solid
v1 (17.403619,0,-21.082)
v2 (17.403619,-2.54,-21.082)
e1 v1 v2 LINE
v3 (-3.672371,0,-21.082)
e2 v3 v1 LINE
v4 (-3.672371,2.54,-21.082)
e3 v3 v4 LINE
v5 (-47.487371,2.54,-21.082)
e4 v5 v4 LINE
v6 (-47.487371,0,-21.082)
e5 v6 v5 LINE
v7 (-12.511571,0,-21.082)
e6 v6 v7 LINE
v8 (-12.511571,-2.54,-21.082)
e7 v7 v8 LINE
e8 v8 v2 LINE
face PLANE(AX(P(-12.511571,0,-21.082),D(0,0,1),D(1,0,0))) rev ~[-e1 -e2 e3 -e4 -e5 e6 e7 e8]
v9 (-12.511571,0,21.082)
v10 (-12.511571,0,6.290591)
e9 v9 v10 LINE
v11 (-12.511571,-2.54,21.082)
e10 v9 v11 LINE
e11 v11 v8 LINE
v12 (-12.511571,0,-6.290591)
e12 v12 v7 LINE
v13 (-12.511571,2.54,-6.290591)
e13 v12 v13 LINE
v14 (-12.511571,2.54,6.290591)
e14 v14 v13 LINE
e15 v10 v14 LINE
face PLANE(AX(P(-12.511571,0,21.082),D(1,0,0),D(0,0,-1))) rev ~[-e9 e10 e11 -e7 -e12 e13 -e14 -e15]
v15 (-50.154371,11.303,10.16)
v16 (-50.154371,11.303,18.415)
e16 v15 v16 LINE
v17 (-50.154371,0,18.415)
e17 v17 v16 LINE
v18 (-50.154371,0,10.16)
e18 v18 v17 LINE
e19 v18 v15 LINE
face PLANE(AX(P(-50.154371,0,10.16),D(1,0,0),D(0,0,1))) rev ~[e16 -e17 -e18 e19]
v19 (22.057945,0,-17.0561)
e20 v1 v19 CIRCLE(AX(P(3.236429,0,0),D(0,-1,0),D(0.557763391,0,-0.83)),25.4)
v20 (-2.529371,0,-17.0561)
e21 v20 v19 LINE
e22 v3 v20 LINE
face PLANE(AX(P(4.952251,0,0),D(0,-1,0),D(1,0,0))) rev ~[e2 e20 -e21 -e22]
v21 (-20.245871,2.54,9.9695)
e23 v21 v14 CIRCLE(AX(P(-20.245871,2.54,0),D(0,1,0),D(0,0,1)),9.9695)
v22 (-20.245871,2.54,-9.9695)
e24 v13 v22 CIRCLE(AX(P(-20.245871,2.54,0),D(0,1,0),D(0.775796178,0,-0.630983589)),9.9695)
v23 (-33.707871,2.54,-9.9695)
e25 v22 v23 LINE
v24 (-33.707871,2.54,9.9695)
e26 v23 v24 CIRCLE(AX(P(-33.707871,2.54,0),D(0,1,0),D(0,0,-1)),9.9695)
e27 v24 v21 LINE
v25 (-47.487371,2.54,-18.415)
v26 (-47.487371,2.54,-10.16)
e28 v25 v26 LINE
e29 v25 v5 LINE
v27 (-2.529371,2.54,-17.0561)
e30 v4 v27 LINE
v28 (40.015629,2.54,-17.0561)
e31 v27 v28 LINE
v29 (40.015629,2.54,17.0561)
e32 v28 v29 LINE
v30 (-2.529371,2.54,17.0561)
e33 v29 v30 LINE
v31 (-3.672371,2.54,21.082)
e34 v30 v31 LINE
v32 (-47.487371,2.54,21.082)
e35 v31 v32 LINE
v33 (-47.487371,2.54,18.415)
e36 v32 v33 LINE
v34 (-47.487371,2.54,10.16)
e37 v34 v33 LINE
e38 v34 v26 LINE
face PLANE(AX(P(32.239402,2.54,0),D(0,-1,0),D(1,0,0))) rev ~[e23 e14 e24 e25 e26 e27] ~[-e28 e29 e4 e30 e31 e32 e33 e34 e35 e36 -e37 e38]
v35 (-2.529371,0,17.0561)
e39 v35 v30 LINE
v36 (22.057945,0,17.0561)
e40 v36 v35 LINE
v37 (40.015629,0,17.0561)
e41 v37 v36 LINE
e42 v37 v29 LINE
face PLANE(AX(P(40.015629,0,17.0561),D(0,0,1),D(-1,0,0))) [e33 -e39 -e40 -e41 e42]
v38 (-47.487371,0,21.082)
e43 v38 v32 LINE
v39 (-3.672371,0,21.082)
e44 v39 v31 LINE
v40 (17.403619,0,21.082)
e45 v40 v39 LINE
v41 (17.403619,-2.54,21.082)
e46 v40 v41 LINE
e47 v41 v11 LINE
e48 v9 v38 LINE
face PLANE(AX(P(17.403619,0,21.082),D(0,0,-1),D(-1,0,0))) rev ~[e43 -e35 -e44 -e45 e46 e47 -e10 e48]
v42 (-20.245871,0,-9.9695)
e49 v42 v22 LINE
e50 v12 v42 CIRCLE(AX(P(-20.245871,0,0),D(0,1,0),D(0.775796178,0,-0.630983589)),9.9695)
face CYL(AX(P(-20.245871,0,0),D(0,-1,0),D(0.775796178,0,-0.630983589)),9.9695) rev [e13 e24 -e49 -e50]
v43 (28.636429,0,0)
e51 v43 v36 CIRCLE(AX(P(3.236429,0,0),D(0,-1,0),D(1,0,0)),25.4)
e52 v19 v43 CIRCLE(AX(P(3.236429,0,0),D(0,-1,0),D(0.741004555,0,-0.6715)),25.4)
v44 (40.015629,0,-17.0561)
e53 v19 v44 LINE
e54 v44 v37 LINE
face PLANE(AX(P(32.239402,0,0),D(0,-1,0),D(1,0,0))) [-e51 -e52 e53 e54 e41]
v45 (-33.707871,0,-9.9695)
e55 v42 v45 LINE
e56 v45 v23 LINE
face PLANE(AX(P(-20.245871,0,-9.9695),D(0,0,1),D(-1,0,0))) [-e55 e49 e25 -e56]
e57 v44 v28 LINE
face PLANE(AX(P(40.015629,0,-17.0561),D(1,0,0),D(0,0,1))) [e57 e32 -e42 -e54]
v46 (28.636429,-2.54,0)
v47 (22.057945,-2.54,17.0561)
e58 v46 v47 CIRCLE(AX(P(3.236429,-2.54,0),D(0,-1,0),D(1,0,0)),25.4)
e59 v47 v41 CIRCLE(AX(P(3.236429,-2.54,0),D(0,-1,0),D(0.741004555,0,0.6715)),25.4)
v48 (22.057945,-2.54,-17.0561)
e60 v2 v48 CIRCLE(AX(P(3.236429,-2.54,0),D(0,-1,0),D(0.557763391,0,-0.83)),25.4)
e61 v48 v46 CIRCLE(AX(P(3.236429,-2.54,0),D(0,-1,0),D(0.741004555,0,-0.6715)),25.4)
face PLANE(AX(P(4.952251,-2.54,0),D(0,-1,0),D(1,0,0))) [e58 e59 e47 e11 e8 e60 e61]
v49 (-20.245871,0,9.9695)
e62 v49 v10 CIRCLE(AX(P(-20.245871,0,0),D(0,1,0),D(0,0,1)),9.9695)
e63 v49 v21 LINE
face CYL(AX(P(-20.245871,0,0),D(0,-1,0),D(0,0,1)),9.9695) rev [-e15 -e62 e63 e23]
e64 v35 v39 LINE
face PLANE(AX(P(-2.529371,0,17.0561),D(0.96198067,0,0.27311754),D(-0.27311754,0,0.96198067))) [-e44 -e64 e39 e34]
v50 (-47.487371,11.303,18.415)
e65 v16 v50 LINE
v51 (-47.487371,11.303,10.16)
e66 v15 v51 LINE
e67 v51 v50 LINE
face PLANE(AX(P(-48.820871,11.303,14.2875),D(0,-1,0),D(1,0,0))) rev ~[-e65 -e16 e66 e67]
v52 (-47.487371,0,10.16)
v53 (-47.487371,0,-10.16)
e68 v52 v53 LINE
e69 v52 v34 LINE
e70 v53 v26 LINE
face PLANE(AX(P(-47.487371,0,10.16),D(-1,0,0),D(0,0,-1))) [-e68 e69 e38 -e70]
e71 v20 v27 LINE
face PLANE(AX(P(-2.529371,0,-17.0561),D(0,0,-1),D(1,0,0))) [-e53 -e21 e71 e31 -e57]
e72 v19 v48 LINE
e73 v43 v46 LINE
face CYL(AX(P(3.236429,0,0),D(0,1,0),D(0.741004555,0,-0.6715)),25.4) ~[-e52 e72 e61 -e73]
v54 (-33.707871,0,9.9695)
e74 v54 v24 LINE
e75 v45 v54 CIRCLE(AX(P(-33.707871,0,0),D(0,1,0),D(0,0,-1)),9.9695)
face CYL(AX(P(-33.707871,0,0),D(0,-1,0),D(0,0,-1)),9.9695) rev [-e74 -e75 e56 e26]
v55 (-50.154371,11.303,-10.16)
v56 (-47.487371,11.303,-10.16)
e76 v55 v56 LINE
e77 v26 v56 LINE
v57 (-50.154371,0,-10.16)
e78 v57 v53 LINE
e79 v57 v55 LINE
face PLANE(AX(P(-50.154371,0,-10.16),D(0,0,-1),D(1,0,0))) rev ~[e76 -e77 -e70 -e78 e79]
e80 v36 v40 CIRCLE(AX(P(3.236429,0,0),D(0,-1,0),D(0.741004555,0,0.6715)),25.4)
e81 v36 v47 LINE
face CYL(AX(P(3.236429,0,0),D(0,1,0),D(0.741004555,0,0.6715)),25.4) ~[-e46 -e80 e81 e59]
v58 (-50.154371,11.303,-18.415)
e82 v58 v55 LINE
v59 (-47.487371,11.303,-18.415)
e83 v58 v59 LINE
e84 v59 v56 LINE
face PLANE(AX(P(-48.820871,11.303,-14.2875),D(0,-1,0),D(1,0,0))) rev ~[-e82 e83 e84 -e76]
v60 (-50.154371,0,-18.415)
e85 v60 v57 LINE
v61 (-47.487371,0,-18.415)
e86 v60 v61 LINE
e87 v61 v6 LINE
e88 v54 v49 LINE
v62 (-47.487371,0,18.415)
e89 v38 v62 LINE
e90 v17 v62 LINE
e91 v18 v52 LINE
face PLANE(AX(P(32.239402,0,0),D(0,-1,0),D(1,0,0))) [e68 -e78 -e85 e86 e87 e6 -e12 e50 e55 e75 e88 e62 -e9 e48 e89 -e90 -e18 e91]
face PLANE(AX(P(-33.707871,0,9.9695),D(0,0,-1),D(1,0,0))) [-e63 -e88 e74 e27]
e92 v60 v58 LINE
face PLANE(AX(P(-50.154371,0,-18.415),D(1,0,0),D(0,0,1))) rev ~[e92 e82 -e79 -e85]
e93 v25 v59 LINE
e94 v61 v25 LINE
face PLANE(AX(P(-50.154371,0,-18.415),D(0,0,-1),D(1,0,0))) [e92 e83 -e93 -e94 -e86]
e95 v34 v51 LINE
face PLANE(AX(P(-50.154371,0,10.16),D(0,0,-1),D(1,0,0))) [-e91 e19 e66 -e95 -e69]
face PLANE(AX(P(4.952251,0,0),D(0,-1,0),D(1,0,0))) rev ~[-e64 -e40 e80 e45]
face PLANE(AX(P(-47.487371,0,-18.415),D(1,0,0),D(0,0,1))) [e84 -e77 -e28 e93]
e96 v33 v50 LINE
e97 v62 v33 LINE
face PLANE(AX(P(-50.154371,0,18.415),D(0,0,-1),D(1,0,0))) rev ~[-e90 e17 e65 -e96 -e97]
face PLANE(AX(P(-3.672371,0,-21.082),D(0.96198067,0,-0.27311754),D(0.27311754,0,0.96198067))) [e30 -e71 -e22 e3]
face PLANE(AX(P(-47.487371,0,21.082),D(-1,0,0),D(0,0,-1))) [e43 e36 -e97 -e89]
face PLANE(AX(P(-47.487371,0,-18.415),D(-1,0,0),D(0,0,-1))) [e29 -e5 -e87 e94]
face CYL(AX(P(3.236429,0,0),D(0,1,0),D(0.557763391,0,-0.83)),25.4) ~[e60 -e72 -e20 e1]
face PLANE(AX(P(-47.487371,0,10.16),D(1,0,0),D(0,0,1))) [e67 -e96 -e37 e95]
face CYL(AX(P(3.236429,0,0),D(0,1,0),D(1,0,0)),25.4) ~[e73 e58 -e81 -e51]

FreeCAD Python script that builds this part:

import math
import FreeCAD as App
import Part
import Sketcher
Q = App.Units.Quantity

doc = App.newDocument("Part")
body = doc.addObject("PartDesign::Body", "Body")

# Sketch on XZ plane
sketch1 = body.newObject("Sketcher::SketchObject", "Sketch")
sketch1.AttachmentSupport = (doc.getObject("XZ_Plane"), [""])
sketch1.MapMode = "FlatFace"
sketch1.addGeometry(Part.LineSegment(App.Vector(40, 17.1, 0), App.Vector(-2.5, 17.1, 0)), False)
sketch1.addGeometry(Part.LineSegment(App.Vector(-2.5, 17.1, 0), App.Vector(-3.7, 21.1, 0)), False)
sketch1.addGeometry(Part.LineSegment(App.Vector(-3.7, 21.1, 0), App.Vector(-47.5, 21.1, 0)), False)
sketch1.addGeometry(Part.LineSegment(App.Vector(-47.5, 21.1, 0), App.Vector(-47.5, 18.4, 0)), False)
sketch1.addGeometry(Part.LineSegment(App.Vector(-47.5, 18.4, 0), App.Vector(-50.2, 18.4, 0)), False)
sketch1.addGeometry(Part.LineSegment(App.Vector(-50.2, 18.4, 0), App.Vector(-50.2, 10.2, 0)), False)
sketch1.addGeometry(Part.LineSegment(App.Vector(-50.2, 10.2, 0), App.Vector(-47.5, 10.2, 0)), False)
sketch1.addGeometry(Part.LineSegment(App.Vector(-47.5, 10.2, 0), App.Vector(-47.5, -10.2, 0)), False)
sketch1.addGeometry(Part.LineSegment(App.Vector(-47.5, -10.2, 0), App.Vector(-50.2, -10.2, 0)), False)
sketch1.addGeometry(Part.LineSegment(App.Vector(-50.2, -10.2, 0), App.Vector(-50.2, -18.4, 0)), False)
sketch1.addGeometry(Part.LineSegment(App.Vector(-50.2, -18.4, 0), App.Vector(-47.5, -18.4, 0)), False)
sketch1.addGeometry(Part.LineSegment(App.Vector(-47.5, -18.4, 0), App.Vector(-47.5, -21.1, 0)), False)
sketch1.addGeometry(Part.LineSegment(App.Vector(-47.5, -21.1, 0), App.Vector(-3.7, -21.1, 0)), False)
sketch1.addGeometry(Part.LineSegment(App.Vector(-3.7, -21.1, 0), App.Vector(-2.5, -17.1, 0)), False)
sketch1.addGeometry(Part.LineSegment(App.Vector(-2.5, -17.1, 0), App.Vector(40, -17.1, 0)), False)
sketch1.addGeometry(Part.LineSegment(App.Vector(40, -17.1, 0), App.Vector(40, 17.1, 0)), False)
sketch1.addGeometry(Part.LineSegment(App.Vector(-12.5, 6.3, 0), App.Vector(-12.5, -6.3, 0)), False)
sketch1.addGeometry(Part.ArcOfCircle(Part.Circle(App.Vector(-20.2, 0, 0), App.Vector(0, 0, 1), 10), math.radians(-90), math.radians(-39)), False)
sketch1.addGeometry(Part.LineSegment(App.Vector(-20.2, -10, 0), App.Vector(-33.7, -10, 0)), False)
sketch1.addGeometry(Part.ArcOfCircle(Part.Circle(App.Vector(-33.7, 0, 0), App.Vector(0, 0, 1), 10), math.radians(90), math.radians(270)), False)
sketch1.addGeometry(Part.LineSegment(App.Vector(-33.7, 10, 0), App.Vector(-20.2, 10, 0)), False)
sketch1.addGeometry(Part.ArcOfCircle(Part.Circle(App.Vector(-20.2, 0, 0), App.Vector(0, 0, 1), 10), math.radians(39), math.radians(90)), False)
sketch1.addConstraint(Sketcher.Constraint("Coincident", 0, 2, 1, 1))
sketch1.addConstraint(Sketcher.Constraint("Coincident", 1, 2, 2, 1))
sketch1.addConstraint(Sketcher.Constraint("Coincident", 2, 2, 3, 1))
sketch1.addConstraint(Sketcher.Constraint("Coincident", 3, 2, 4, 1))
sketch1.addConstraint(Sketcher.Constraint("Coincident", 4, 2, 5, 1))
sketch1.addConstraint(Sketcher.Constraint("Coincident", 5, 2, 6, 1))
sketch1.addConstraint(Sketcher.Constraint("Coincident", 6, 2, 7, 1))
sketch1.addConstraint(Sketcher.Constraint("Coincident", 7, 2, 8, 1))
sketch1.addConstraint(Sketcher.Constraint("Coincident", 8, 2, 9, 1))
sketch1.addConstraint(Sketcher.Constraint("Coincident", 9, 2, 10, 1))
sketch1.addConstraint(Sketcher.Constraint("Coincident", 10, 2, 11, 1))
sketch1.addConstraint(Sketcher.Constraint("Coincident", 11, 2, 12, 1))
sketch1.addConstraint(Sketcher.Constraint("Coincident", 12, 2, 13, 1))
sketch1.addConstraint(Sketcher.Constraint("Coincident", 13, 2, 14, 1))
sketch1.addConstraint(Sketcher.Constraint("Coincident", 14, 2, 15, 1))
sketch1.addConstraint(Sketcher.Constraint("Coincident", 15, 2, 0, 1))
sketch1.addConstraint(Sketcher.Constraint("Coincident", 16, 2, 17, 2))
sketch1.addConstraint(Sketcher.Constraint("Tangent", 17, 1, 18, 1))
sketch1.addConstraint(Sketcher.Constraint("Tangent", 18, 2, 19, 2))
sketch1.addConstraint(Sketcher.Constraint("Tangent", 19, 1, 20, 1))
sketch1.addConstraint(Sketcher.Constraint("Tangent", 20, 2, 21, 2))
sketch1.addConstraint(Sketcher.Constraint("Coincident", 21, 1, 16, 1))
sketch1.addConstraint(Sketcher.Constraint("Horizontal", 0))
sketch1.addConstraint(Sketcher.Constraint("Horizontal", 2))
sketch1.addConstraint(Sketcher.Constraint("Vertical", 3))
sketch1.addConstraint(Sketcher.Constraint("Horizontal", 4))
sketch1.addConstraint(Sketcher.Constraint("Vertical", 5))
sketch1.addConstraint(Sketcher.Constraint("Horizontal", 6))
sketch1.addConstraint(Sketcher.Constraint("Vertical", 7))
sketch1.addConstraint(Sketcher.Constraint("Horizontal", 8))
sketch1.addConstraint(Sketcher.Constraint("Vertical", 9))
sketch1.addConstraint(Sketcher.Constraint("Horizontal", 10))
sketch1.addConstraint(Sketcher.Constraint("Vertical", 11))
sketch1.addConstraint(Sketcher.Constraint("Horizontal", 12))
sketch1.addConstraint(Sketcher.Constraint("Horizontal", 14))
sketch1.addConstraint(Sketcher.Constraint("Vertical", 15))
sketch1.addConstraint(Sketcher.Constraint("Vertical", 16))
sketch1.addConstraint(Sketcher.Constraint("Horizontal", 18))
sketch1.addConstraint(Sketcher.Constraint("Horizontal", 20))
sketch1.addConstraint(Sketcher.Constraint("Coincident", 21, 3, 17, 3))
sketch1.addConstraint(Sketcher.Constraint("Equal", 17, 19))
sketch1.addConstraint(Sketcher.Constraint("Symmetric", 5, 2, 8, 2, -1))
sketch1.addConstraint(Sketcher.Constraint("Symmetric", 3, 2, 10, 2, -1))
sketch1.addConstraint(Sketcher.Constraint("Symmetric", 1, 2, 12, 2, -1))
sketch1.addConstraint(Sketcher.Constraint("Symmetric", 0, 2, 13, 2, -1))
sketch1.addConstraint(Sketcher.Constraint("PointOnObject", 17, 3, -1))
sketch1.addConstraint(Sketcher.Constraint("Vertical", 3, 2, 6, 2))
sketch1.addConstraint(Sketcher.Constraint("Equal", 10, 3))
sketch1.addConstraint(Sketcher.Constraint("DistanceY", 7, 2, 7, 1, Q("0.8 in")))
sketch1.addConstraint(Sketcher.Constraint("DistanceX", 18, 2, 18, 1, Q("0.53 in")))
sketch1.addConstraint(Sketcher.Constraint("Radius", 17, Q("0.3925 in")))
sketch1.addConstraint(Sketcher.Constraint("DistanceX", 0, 2, 0, 1, Q("1.675 in")))
sketch1.addConstraint(Sketcher.Constraint("DistanceX", 2, 2, 2, 1, Q("1.725 in")))
sketch1.addConstraint(Sketcher.Constraint("DistanceX", 4, 2, 4, 1, Q("0.105 in")))
sketch1.addConstraint(Sketcher.Constraint("DistanceY", 5, 2, 5, 1, Q("0.325 in")))
sketch1.addConstraint(Sketcher.Constraint("DistanceY", 15, 1, 15, 2, Q("1.343 in")))
sketch1.addConstraint(Sketcher.Constraint("DistanceX", 2, 2, 0, 2, Q("1.77 in")))
sketch1.addConstraint(Sketcher.Constraint("DistanceX", 16, 2, 13, 2, Q("0.393 in")))
sketch1.addConstraint(Sketcher.Constraint("DistanceX", 17, 3, 0, 2, Q("0.6975 in")))
sketch1.addConstraint(Sketcher.Constraint("DistanceX", 17, 3, -1, 1, 20.245871))
pad1 = body.newObject("PartDesign::Pad", "Pad")
pad1.Profile = sketch1
pad1.Length = Q("0.1 in")
pad1.Reversed = True

# Sketch on XZ plane
sketch2 = body.newObject("Sketcher::SketchObject", "Sketch001")
sketch2.AttachmentSupport = (doc.getObject("XZ_Plane"), [""])
sketch2.MapMode = "FlatFace"
sketch2.addGeometry(Part.LineSegment(App.Vector(-13, 21, 0), App.Vector(-13, -21, 0)), False)
sketch2.addGeometry(Part.LineSegment(App.Vector(-13, -21, 0), App.Vector(17, -21, 0)), False)
sketch2.addGeometry(Part.ArcOfCircle(Part.Circle(App.Vector(3, 0, 0), App.Vector(0, 0, 1), 25), math.radians(-56.1), math.radians(-42.18)), False)
sketch2.addGeometry(Part.ArcOfCircle(Part.Circle(App.Vector(3, 0, 0), App.Vector(0, 0, 1), 25), math.radians(-42), math.radians(0)), False)
sketch2.addGeometry(Part.ArcOfCircle(Part.Circle(App.Vector(3, 0, 0), App.Vector(0, 0, 1), 25), math.radians(0), math.radians(42)), False)
sketch2.addGeometry(Part.ArcOfCircle(Part.Circle(App.Vector(3, 0, 0), App.Vector(0, 0, 1), 25), math.radians(42.18), math.radians(56.1)), False)
sketch2.addGeometry(Part.LineSegment(App.Vector(17, 21, 0), App.Vector(-13, 21, 0)), False)
sketch2.addConstraint(Sketcher.Constraint("Coincident", 0, 2, 1, 1))
sketch2.addConstraint(Sketcher.Constraint("Coincident", 1, 2, 2, 1))
sketch2.addConstraint(Sketcher.Constraint("Tangent", 2, 2, 3, 1))
sketch2.addConstraint(Sketcher.Constraint("Tangent", 3, 2, 4, 1))
sketch2.addConstraint(Sketcher.Constraint("Tangent", 4, 2, 5, 1))
sketch2.addConstraint(Sketcher.Constraint("Coincident", 5, 2, 6, 1))
sketch2.addConstraint(Sketcher.Constraint("Coincident", 6, 2, 0, 1))
sketch2.addConstraint(Sketcher.Constraint("Vertical", 0))
sketch2.addConstraint(Sketcher.Constraint("Horizontal", 1))
sketch2.addConstraint(Sketcher.Constraint("Horizontal", 6))
sketch2.addConstraint(Sketcher.Constraint("Coincident", 4, 3, 2, 3))
sketch2.addConstraint(Sketcher.Constraint("Equal", 4, 5))
sketch2.addConstraint(Sketcher.Constraint("Symmetric", 2, 2, 4, 2, -1))
sketch2.addConstraint(Sketcher.Constraint("PointOnObject", 3, 2, -1))
sketch2.addConstraint(Sketcher.Constraint("Vertical", 1, 2, 5, 2))
sketch2.addConstraint(Sketcher.Constraint("Radius", 2, Q("1 in")))
sketch2.addConstraint(Sketcher.Constraint("DistanceY", 0, 2, 0, 1, Q("1.66 in")))
sketch2.addConstraint(Sketcher.Constraint("DistanceX", 0, 2, 3, 3, Q("0.62 in")))
sketch2.addConstraint(Sketcher.Constraint("DistanceY", 2, 2, -1, 1, Q("0.6715 in")))
sketch2.addConstraint(Sketcher.Constraint("DistanceX", -1, 1, 2, 3, 3.236429))
pad2 = body.newObject("PartDesign::Pad", "Pad001")
pad2.Profile = sketch2
pad2.Length = Q("0.1 in")

# Sketch on XZ plane
sketch3 = body.newObject("Sketcher::SketchObject", "Sketch002")
sketch3.AttachmentSupport = (doc.getObject("XZ_Plane"), [""])
sketch3.MapMode = "FlatFace"
sketch3.addGeometry(Part.LineSegment(App.Vector(-50.2, 18.4, 0), App.Vector(-50.2, 10.2, 0)), False)
sketch3.addGeometry(Part.LineSegment(App.Vector(-50.2, 10.2, 0), App.Vector(-47.5, 10.2, 0)), False)
sketch3.addGeometry(Part.LineSegment(App.Vector(-47.5, 10.2, 0), App.Vector(-47.5, 18.4, 0)), False)
sketch3.addGeometry(Part.LineSegment(App.Vector(-47.5, 18.4, 0), App.Vector(-50.2, 18.4, 0)), False)
sketch3.addGeometry(Part.LineSegment(App.Vector(-50.2, -10.2, 0), App.Vector(-50.2, -18.4, 0)), False)
sketch3.addGeometry(Part.LineSegment(App.Vector(-50.2, -18.4, 0), App.Vector(-47.5, -18.4, 0)), False)
sketch3.addGeometry(Part.LineSegment(App.Vector(-47.5, -18.4, 0), App.Vector(-47.5, -10.2, 0)), False)
sketch3.addGeometry(Part.LineSegment(App.Vector(-47.5, -10.2, 0), App.Vector(-50.2, -10.2, 0)), False)
sketch3.addConstraint(Sketcher.Constraint("Coincident", 0, 2, 1, 1))
sketch3.addConstraint(Sketcher.Constraint("Coincident", 1, 2, 2, 1))
sketch3.addConstraint(Sketcher.Constraint("Coincident", 2, 2, 3, 1))
sketch3.addConstraint(Sketcher.Constraint("Coincident", 3, 2, 0, 1))
sketch3.addConstraint(Sketcher.Constraint("Coincident", 4, 2, 5, 1))
sketch3.addConstraint(Sketcher.Constraint("Coincident", 5, 2, 6, 1))
sketch3.addConstraint(Sketcher.Constraint("Coincident", 6, 2, 7, 1))
sketch3.addConstraint(Sketcher.Constraint("Coincident", 7, 2, 4, 1))
sketch3.addConstraint(Sketcher.Constraint("Vertical", 0))
sketch3.addConstraint(Sketcher.Constraint("Horizontal", 1))
sketch3.addConstraint(Sketcher.Constraint("Vertical", 2))
sketch3.addConstraint(Sketcher.Constraint("Horizontal", 3))
sketch3.addConstraint(Sketcher.Constraint("Vertical", 4))
sketch3.addConstraint(Sketcher.Constraint("Horizontal", 5))
sketch3.addConstraint(Sketcher.Constraint("Vertical", 6))
sketch3.addConstraint(Sketcher.Constraint("Horizontal", 7))
sketch3.addConstraint(Sketcher.Constraint("Symmetric", 3, 2, 4, 2, -1))
sketch3.addConstraint(Sketcher.Constraint("Symmetric", 1, 2, 6, 2, -1))
sketch3.addConstraint(Sketcher.Constraint("DistanceY", -1, 1, 0, 2, Q("0.4 in")))
sketch3.addConstraint(Sketcher.Constraint("DistanceX", 1, 1, 1, 2, Q("0.105 in")))
sketch3.addConstraint(Sketcher.Constraint("DistanceY", 0, 2, 0, 1, Q("0.325 in")))
sketch3.addConstraint(Sketcher.Constraint("DistanceX", 0, 2, -1, 1, 50.154371))
pad3 = body.newObject("PartDesign::Pad", "Pad002")
pad3.Profile = sketch3
pad3.Length = Q("0.445 in")
pad3.Reversed = True

doc.recompute()
